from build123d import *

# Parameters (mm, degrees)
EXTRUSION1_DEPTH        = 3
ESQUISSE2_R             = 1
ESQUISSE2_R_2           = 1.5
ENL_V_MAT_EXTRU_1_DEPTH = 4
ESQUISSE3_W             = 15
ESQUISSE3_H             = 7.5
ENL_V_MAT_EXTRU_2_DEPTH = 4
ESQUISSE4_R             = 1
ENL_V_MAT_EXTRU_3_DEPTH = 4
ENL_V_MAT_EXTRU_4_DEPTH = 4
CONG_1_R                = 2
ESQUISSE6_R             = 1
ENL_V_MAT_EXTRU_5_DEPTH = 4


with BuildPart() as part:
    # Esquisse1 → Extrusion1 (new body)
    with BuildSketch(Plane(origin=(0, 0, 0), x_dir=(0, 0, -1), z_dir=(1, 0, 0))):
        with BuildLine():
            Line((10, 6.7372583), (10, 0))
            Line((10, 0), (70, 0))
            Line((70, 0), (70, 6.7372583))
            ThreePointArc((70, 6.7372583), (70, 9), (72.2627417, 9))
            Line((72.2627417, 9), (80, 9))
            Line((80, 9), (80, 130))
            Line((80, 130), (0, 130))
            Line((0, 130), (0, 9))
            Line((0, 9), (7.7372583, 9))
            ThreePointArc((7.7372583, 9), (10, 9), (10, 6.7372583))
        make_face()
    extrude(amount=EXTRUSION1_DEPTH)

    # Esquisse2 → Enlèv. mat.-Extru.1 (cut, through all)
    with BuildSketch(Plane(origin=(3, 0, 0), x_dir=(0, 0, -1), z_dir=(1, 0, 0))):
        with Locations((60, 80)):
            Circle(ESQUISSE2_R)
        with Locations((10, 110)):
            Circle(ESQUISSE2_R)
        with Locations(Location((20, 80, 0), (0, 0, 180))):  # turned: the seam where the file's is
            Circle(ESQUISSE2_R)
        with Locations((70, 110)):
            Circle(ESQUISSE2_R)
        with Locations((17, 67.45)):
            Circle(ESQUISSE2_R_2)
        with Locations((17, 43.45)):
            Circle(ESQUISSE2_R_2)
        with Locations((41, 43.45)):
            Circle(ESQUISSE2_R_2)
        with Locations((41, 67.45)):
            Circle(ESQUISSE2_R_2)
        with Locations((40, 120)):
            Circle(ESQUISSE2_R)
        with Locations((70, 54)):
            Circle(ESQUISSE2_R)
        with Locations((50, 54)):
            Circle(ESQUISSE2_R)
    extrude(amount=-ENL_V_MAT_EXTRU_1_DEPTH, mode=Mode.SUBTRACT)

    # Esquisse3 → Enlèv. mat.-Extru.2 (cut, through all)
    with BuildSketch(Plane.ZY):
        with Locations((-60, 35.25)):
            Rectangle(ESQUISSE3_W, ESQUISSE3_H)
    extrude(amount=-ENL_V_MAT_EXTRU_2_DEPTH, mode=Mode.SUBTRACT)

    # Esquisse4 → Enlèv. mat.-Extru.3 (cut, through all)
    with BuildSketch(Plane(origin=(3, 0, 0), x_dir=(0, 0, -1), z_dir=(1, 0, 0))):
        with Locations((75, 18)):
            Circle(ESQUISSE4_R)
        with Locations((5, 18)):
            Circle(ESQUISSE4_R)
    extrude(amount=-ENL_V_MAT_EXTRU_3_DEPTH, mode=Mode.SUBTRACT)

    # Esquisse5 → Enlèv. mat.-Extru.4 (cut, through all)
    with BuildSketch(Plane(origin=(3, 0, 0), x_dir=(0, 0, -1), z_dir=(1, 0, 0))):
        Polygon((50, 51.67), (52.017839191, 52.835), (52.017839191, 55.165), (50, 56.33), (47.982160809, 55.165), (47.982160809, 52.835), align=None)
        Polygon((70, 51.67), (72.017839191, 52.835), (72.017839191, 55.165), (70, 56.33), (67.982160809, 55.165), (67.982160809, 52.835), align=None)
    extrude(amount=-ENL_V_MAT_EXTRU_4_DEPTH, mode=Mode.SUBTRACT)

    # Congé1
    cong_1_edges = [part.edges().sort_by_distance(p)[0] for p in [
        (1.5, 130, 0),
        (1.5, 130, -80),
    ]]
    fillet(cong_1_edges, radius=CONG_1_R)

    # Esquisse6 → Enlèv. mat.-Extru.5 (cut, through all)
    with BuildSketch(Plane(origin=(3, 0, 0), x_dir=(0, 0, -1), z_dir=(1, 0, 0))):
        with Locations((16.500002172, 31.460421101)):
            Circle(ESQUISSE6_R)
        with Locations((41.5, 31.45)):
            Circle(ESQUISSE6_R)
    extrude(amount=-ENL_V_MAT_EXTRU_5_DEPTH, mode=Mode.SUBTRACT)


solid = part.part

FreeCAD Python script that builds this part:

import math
import FreeCAD as App
import Part
import Sketcher

V = App.Vector
Q = App.Units.Quantity


def edges_at(feature, points):
    """Names of the edges that pass closest to the given points."""
    edges = feature.Shape.Edges
    near = lambda p: min(range(len(edges)), key=lambda i: edges[i].distToShape(Part.Vertex(*p))[0])
    return sorted({f"Edge{near(p) + 1}" for p in points})

doc = App.newDocument("Part")
body = doc.addObject("PartDesign::Body", "Body")

sketch1 = doc.addObject("Sketcher::SketchObject", "Sketch")
body.addObject(sketch1)
sketch1.AttachmentSupport = (doc.YZ_Plane, [""])
sketch1.MapMode = "FlatFace"
sketch1.addGeometry(Part.LineSegment(V(6.737258, -10, 0), V(0, -10, 0)), False)
sketch1.addGeometry(Part.LineSegment(V(0, -10, 0), V(0, -70, 0)), False)
sketch1.addGeometry(Part.LineSegment(V(0, -70, 0), V(6.737258, -70, 0)), False)
sketch1.addGeometry(Part.ArcOfCircle(Part.Circle(V(7.868629, -71.131371, 0), V(0, 0, 1), 1.6), math.radians(-45), math.radians(135)), False)
sketch1.addGeometry(Part.LineSegment(V(9, -72.262742, 0), V(9, -80, 0)), False)
sketch1.addGeometry(Part.LineSegment(V(9, -80, 0), V(130, -80, 0)), False)
sketch1.addGeometry(Part.LineSegment(V(130, -80, 0), V(130, 0, 0)), False)
sketch1.addGeometry(Part.LineSegment(V(130, 0, 0), V(9, 0, 0)), False)
sketch1.addGeometry(Part.LineSegment(V(9, 0, 0), V(9, -7.737258, 0)), False)
sketch1.addGeometry(Part.ArcOfCircle(Part.Circle(V(7.868629, -8.868629, 0), V(0, 0, 1), 1.6), math.radians(-135), math.radians(45)), False)
sketch1.addConstraint(Sketcher.Constraint("Coincident", 0, 2, 1, 1))
sketch1.addConstraint(Sketcher.Constraint("Coincident", 1, 2, 2, 1))
sketch1.addConstraint(Sketcher.Constraint("Coincident", 2, 2, 3, 2))
sketch1.addConstraint(Sketcher.Constraint("Coincident", 3, 1, 4, 1))
sketch1.addConstraint(Sketcher.Constraint("Coincident", 4, 2, 5, 1))
sketch1.addConstraint(Sketcher.Constraint("Coincident", 5, 2, 6, 1))
sketch1.addConstraint(Sketcher.Constraint("Coincident", 6, 2, 7, 1))
sketch1.addConstraint(Sketcher.Constraint("Coincident", 7, 2, 8, 1))
sketch1.addConstraint(Sketcher.Constraint("Coincident", 8, 2, 9, 2))
sketch1.addConstraint(Sketcher.Constraint("Coincident", 9, 1, 0, 1))
sketch1.addConstraint(Sketcher.Constraint("Horizontal", 0))
sketch1.addConstraint(Sketcher.Constraint("Vertical", 1))
sketch1.addConstraint(Sketcher.Constraint("Horizontal", 2))
sketch1.addConstraint(Sketcher.Constraint("Vertical", 4))
sketch1.addConstraint(Sketcher.Constraint("Horizontal", 5))
sketch1.addConstraint(Sketcher.Constraint("Vertical", 6))
sketch1.addConstraint(Sketcher.Constraint("Horizontal", 7))
sketch1.addConstraint(Sketcher.Constraint("Vertical", 8))
sketch1.addConstraint(Sketcher.Constraint("Equal", 3, 9))
sketch1.addConstraint(Sketcher.Constraint("PointOnObject", 0, 2, -2))
sketch1.addConstraint(Sketcher.Constraint("PointOnObject", 6, 2, -1))
sketch1.addConstraint(Sketcher.Constraint("Vertical", 3, 3, 9, 3))
sketch1.addConstraint(Sketcher.Constraint("Vertical", 4, 2, 7, 2))
sketch1.addConstraint(Sketcher.Constraint("Vertical", 2, 2, 9, 1))
sketch1.addConstraint(Sketcher.Constraint("Equal", 4, 8))
sketch1.addConstraint(Sketcher.Constraint("Radius", 3, 1.6))
sketch1.addConstraint(Sketcher.Constraint("DistanceX", 5, 1, 5, 2, 121.0))
sketch1.addConstraint(Sketcher.Constraint("DistanceY", 1, 2, 1, 1, 60.0))
sketch1.addConstraint(Sketcher.Constraint("DistanceY", 6, 1, 6, 2, 80.0))
sketch1.addConstraint(Sketcher.Constraint("DistanceX", -1, 1, 3, 1, 9.0))
sketch1.addConstraint(Sketcher.Constraint("DistanceX", 0, 2, 0, 1, 6.737258))
sketch1.addConstraint(Sketcher.Constraint("DistanceX", -1, 1, 3, 3, 7.868629))
pad1 = doc.addObject("PartDesign::Pad", "Pad")
body.addObject(pad1)
pad1.Profile = sketch1
pad1.Length = 3

sketch2 = doc.addObject("Sketcher::SketchObject", "Sketch001")
body.addObject(sketch2)
sketch2.AttachmentSupport = (doc.YZ_Plane, [""])
sketch2.MapMode = "FlatFace"
sketch2.AttachmentOffset = App.Placement(V(0, 0, 3), App.Rotation())
sketch2.addGeometry(Part.Circle(V(80, -60, 0), V(0, 0, 1), 1), False)
sketch2.addGeometry(Part.Circle(V(110, -10, 0), V(0, 0, 1), 1), False)
sketch2.addGeometry(Part.Circle(V(80, -20, 0), V(0, 0, 1), 1), False)
sketch2.addGeometry(Part.Circle(V(110, -70, 0), V(0, 0, 1), 1), False)
sketch2.addGeometry(Part.Circle(V(67.45, -17, 0), V(0, 0, 1), 1.5), False)
sketch2.addGeometry(Part.Circle(V(43.45, -17, 0), V(0, 0, 1), 1.5), False)
sketch2.addGeometry(Part.Circle(V(43.45, -41, 0), V(0, 0, 1), 1.5), False)
sketch2.addGeometry(Part.Circle(V(67.45, -41, 0), V(0, 0, 1), 1.5), False)
sketch2.addGeometry(Part.Circle(V(120, -40, 0), V(0, 0, 1), 1), False)
sketch2.addGeometry(Part.Circle(V(54, -70, 0), V(0, 0, 1), 1), False)
sketch2.addGeometry(Part.Circle(V(54, -50, 0), V(0, 0, 1), 1), False)
sketch2.addConstraint(Sketcher.Constraint("Equal", 0, 1))
sketch2.addConstraint(Sketcher.Constraint("Equal", 1, 2))
sketch2.addConstraint(Sketcher.Constraint("Equal", 2, 3))
sketch2.addConstraint(Sketcher.Constraint("Equal", 4, 5))
sketch2.addConstraint(Sketcher.Constraint("Equal", 5, 6))
sketch2.addConstraint(Sketcher.Constraint("Equal", 6, 7))
sketch2.addConstraint(Sketcher.Constraint("Equal", 3, 8))
sketch2.addConstraint(Sketcher.Constraint("Equal", 8, 9))
sketch2.addConstraint(Sketcher.Constraint("Equal", 9, 10))
sketch2.addConstraint(Sketcher.Constraint("Horizontal", 4, 3, 5, 3))
sketch2.addConstraint(Sketcher.Constraint("Horizontal", 6, 3, 7, 3))
sketch2.addConstraint(Sketcher.Constraint("Horizontal", 3, 3, 9, 3))
sketch2.addConstraint(Sketcher.Constraint("Vertical", 0, 3, 2, 3))
sketch2.addConstraint(Sketcher.Constraint("Vertical", 1, 3, 3, 3))
sketch2.addConstraint(Sketcher.Constraint("Vertical", 5, 3, 6, 3))
sketch2.addConstraint(Sketcher.Constraint("Vertical", 4, 3, 7, 3))
sketch2.addConstraint(Sketcher.Constraint("Vertical", 9, 3, 10, 3))
sketch2.addConstraint(Sketcher.Constraint("Diameter", 0, 2.0))
sketch2.addConstraint(Sketcher.Constraint("Diameter", 4, 3.0))
sketch2.addConstraint(Sketcher.Constraint("DistanceX", -1, 1, 0, 3, 80.0))
sketch2.addConstraint(Sketcher.Constraint("DistanceY", 0, 3, -1, 1, 60.0))
sketch2.addConstraint(Sketcher.Constraint("DistanceX", -1, 1, 1, 3, 110.0))
sketch2.addConstraint(Sketcher.Constraint("DistanceY", 1, 3, -1, 1, 10.0))
sketch2.addConstraint(Sketcher.Constraint("DistanceY", 2, 3, -1, 1, 20.0))
sketch2.addConstraint(Sketcher.Constraint("DistanceY", 3, 3, -1, 1, 70.0))
sketch2.addConstraint(Sketcher.Constraint("DistanceY", 4, 3, -1, 1, 17.0))
sketch2.addConstraint(Sketcher.Constraint("DistanceY", 6, 3, -1, 1, 41.0))
sketch2.addConstraint(Sketcher.Constraint("DistanceX", -1, 1, 8, 3, 120.0))
sketch2.addConstraint(Sketcher.Constraint("DistanceY", 8, 3, -1, 1, 40.0))
sketch2.addConstraint(Sketcher.Constraint("DistanceX", -1, 1, 9, 3, 54.0))
sketch2.addConstraint(Sketcher.Constraint("DistanceY", 10, 3, -1, 1, 50.0))
sketch2.addConstraint(Sketcher.Constraint("DistanceX", 5, 3, 4, 3, 24.0))
sketch2.addConstraint(Sketcher.Constraint("DistanceX", -1, 1, 4, 3, 67.45))
pocket1 = doc.addObject("PartDesign::Pocket", "Pocket")
body.addObject(pocket1)
pocket1.Profile = sketch2
pocket1.Type = "ThroughAll"

sketch3 = doc.addObject("Sketcher::SketchObject", "Sketch002")
body.addObject(sketch3)
sketch3.AttachmentSupport = (doc.YZ_Plane, [""])
sketch3.MapMode = "FlatFace"
sketch3.addGeometry(Part.LineSegment(V(39, -67.5, 0), V(31.5, -67.5, 0)), False)
sketch3.addGeometry(Part.LineSegment(V(31.5, -67.5, 0), V(31.5, -52.5, 0)), False)
sketch3.addGeometry(Part.LineSegment(V(31.5, -52.5, 0), V(39, -52.5, 0)), False)
sketch3.addGeometry(Part.LineSegment(V(39, -52.5, 0), V(39, -67.5, 0)), False)
sketch3.addConstraint(Sketcher.Constraint("Coincident", 0, 2, 1, 1))
sketch3.addConstraint(Sketcher.Constraint("Coincident", 1, 2, 2, 1))
sketch3.addConstraint(Sketcher.Constraint("Coincident", 2, 2, 3, 1))
sketch3.addConstraint(Sketcher.Constraint("Coincident", 3, 2, 0, 1))
sketch3.addConstraint(Sketcher.Constraint("Horizontal", 0))
sketch3.addConstraint(Sketcher.Constraint("Vertical", 1))
sketch3.addConstraint(Sketcher.Constraint("Horizontal", 2))
sketch3.addConstraint(Sketcher.Constraint("Vertical", 3))
sketch3.addConstraint(Sketcher.Constraint("DistanceY", 1, 1, 1, 2, 15.0))
sketch3.addConstraint(Sketcher.Constraint("DistanceX", 0, 2, 0, 1, 7.5))
sketch3.addConstraint(Sketcher.Constraint("DistanceX", -1, 1, 2, 2, 39.0))
sketch3.addConstraint(Sketcher.Constraint("DistanceY", 0, 2, -1, 1, 67.5))
pocket2 = doc.addObject("PartDesign::Pocket", "Pocket001")
body.addObject(pocket2)
pocket2.Profile = sketch3
pocket2.Type = "ThroughAll"
pocket2.Reversed = True

sketch4 = doc.addObject("Sketcher::SketchObject", "Sketch003")
body.addObject(sketch4)
sketch4.AttachmentSupport = (doc.YZ_Plane, [""])
sketch4.MapMode = "FlatFace"
sketch4.AttachmentOffset = App.Placement(V(0, 0, 3), App.Rotation())
sketch4.addGeometry(Part.Circle(V(18, -75, 0), V(0, 0, 1), 1), False)
sketch4.addGeometry(Part.Circle(V(18, -5, 0), V(0, 0, 1), 1), False)
sketch4.addConstraint(Sketcher.Constraint("Equal", 0, 1))
sketch4.addConstraint(Sketcher.Constraint("Vertical", 0, 3, 1, 3))
sketch4.addConstraint(Sketcher.Constraint("Diameter", 0, 2.0))
sketch4.addConstraint(Sketcher.Constraint("DistanceX", -1, 1, 0, 3, 18.0))
sketch4.addConstraint(Sketcher.Constraint("DistanceY", 0, 3, -1, 1, 75.0))
sketch4.addConstraint(Sketcher.Constraint("DistanceY", 1, 3, -1, 1, 5.0))
pocket3 = doc.addObject("PartDesign::Pocket", "Pocket002")
body.addObject(pocket3)
pocket3.Profile = sketch4
pocket3.Type = "ThroughAll"

sketch5 = doc.addObject("Sketcher::SketchObject", "Sketch004")
body.addObject(sketch5)
sketch5.AttachmentSupport = (doc.YZ_Plane, [""])
sketch5.MapMode = "FlatFace"
sketch5.AttachmentOffset = App.Placement(V(0, 0, 3), App.Rotation())
sketch5.addGeometry(Part.LineSegment(V(51.67, -50, 0), V(52.835, -52.017839, 0)), False)
sketch5.addGeometry(Part.LineSegment(V(52.835, -52.017839, 0), V(55.165, -52.017839, 0)), False)
sketch5.addGeometry(Part.LineSegment(V(55.165, -52.017839, 0), V(56.33, -50, 0)), False)
sketch5.addGeometry(Part.LineSegment(V(56.33, -50, 0), V(55.165, -47.982161, 0)), False)
sketch5.addGeometry(Part.LineSegment(V(55.165, -47.982161, 0), V(52.835, -47.982161, 0)), False)
sketch5.addGeometry(Part.LineSegment(V(52.835, -47.982161, 0), V(51.67, -50, 0)), False)
sketch5.addGeometry(Part.LineSegment(V(51.67, -70, 0), V(52.835, -72.017839, 0)), False)
sketch5.addGeometry(Part.LineSegment(V(52.835, -72.017839, 0), V(55.165, -72.017839, 0)), False)
sketch5.addGeometry(Part.LineSegment(V(55.165, -72.017839, 0), V(56.33, -70, 0)), False)
sketch5.addGeometry(Part.LineSegment(V(56.33, -70, 0), V(55.165, -67.982161, 0)), False)
sketch5.addGeometry(Part.LineSegment(V(55.165, -67.982161, 0), V(52.835, -67.982161, 0)), False)
sketch5.addGeometry(Part.LineSegment(V(52.835, -67.982161, 0), V(51.67, -70, 0)), False)
sketch5.addConstraint(Sketcher.Constraint("Coincident", 0, 2, 1, 1))
sketch5.addConstraint(Sketcher.Constraint("Coincident", 1, 2, 2, 1))
sketch5.addConstraint(Sketcher.Constraint("Coincident", 2, 2, 3, 1))
sketch5.addConstraint(Sketcher.Constraint("Coincident", 3, 2, 4, 1))
sketch5.addConstraint(Sketcher.Constraint("Coincident", 4, 2, 5, 1))
sketch5.addConstraint(Sketcher.Constraint("Coincident", 5, 2, 0, 1))
sketch5.addConstraint(Sketcher.Constraint("Coincident", 6, 2, 7, 1))
sketch5.addConstraint(Sketcher.Constraint("Coincident", 7, 2, 8, 1))
sketch5.addConstraint(Sketcher.Constraint("Coincident", 8, 2, 9, 1))
sketch5.addConstraint(Sketcher.Constraint("Coincident", 9, 2, 10, 1))
sketch5.addConstraint(Sketcher.Constraint("Coincident", 10, 2, 11, 1))
sketch5.addConstraint(Sketcher.Constraint("Coincident", 11, 2, 6, 1))
sketch5.addConstraint(Sketcher.Constraint("Horizontal", 1))
sketch5.addConstraint(Sketcher.Constraint("Horizontal", 4))
sketch5.addConstraint(Sketcher.Constraint("Horizontal", 7))
sketch5.addConstraint(Sketcher.Constraint("Horizontal", 10))
sketch5.addConstraint(Sketcher.Constraint("Parallel", 0, 3))
sketch5.addConstraint(Sketcher.Constraint("Parallel", 2, 5))
sketch5.addConstraint(Sketcher.Constraint("Parallel", 3, 6))
sketch5.addConstraint(Sketcher.Constraint("Parallel", 5, 8))
sketch5.addConstraint(Sketcher.Constraint("Parallel", 6, 9))
sketch5.addConstraint(Sketcher.Constraint("Parallel", 8, 11))
sketch5.addConstraint(Sketcher.Constraint("Horizontal", 2, 2, 5, 2))
sketch5.addConstraint(Sketcher.Constraint("Horizontal", 8, 2, 11, 2))
sketch5.addConstraint(Sketcher.Constraint("Vertical", 1, 2, 3, 2))
sketch5.addConstraint(Sketcher.Constraint("Vertical", 0, 2, 4, 2))
sketch5.addConstraint(Sketcher.Constraint("Vertical", 4, 2, 6, 2))
sketch5.addConstraint(Sketcher.Constraint("Vertical", 3, 2, 7, 2))
sketch5.addConstraint(Sketcher.Constraint("Vertical", 2, 2, 8, 2))
sketch5.addConstraint(Sketcher.Constraint("Vertical", 7, 2, 9, 2))
sketch5.addConstraint(Sketcher.Constraint("Angle", 0, Q("-60 deg")))
sketch5.addConstraint(Sketcher.Constraint("DistanceY", 2, 2, -1, 1, 50.0))
sketch5.addConstraint(Sketcher.Constraint("DistanceY", 8, 2, -1, 1, 70.0))
sketch5.addConstraint(Sketcher.Constraint("DistanceX", 1, 1, 1, 2, 2.33))
sketch5.addConstraint(Sketcher.Constraint("Distance", 0, 2.33))
sketch5.addConstraint(Sketcher.Constraint("DistanceX", -1, 1, 2, 2, 56.33))
pocket4 = doc.addObject("PartDesign::Pocket", "Pocket003")
body.addObject(pocket4)
pocket4.Profile = sketch5
pocket4.Type = "ThroughAll"
doc.recompute()

fillet = doc.addObject("PartDesign::Fillet", "Fillet")
body.addObject(fillet)
fillet.Base = (pocket4, edges_at(pocket4, [(1.5, 130, 0), (1.5, 130, -80)]))
fillet.Radius = 2

sketch6 = doc.addObject("Sketcher::SketchObject", "Sketch005")
body.addObject(sketch6)
sketch6.AttachmentSupport = (doc.YZ_Plane, [""])
sketch6.MapMode = "FlatFace"
sketch6.AttachmentOffset = App.Placement(V(0, 0, 3), App.Rotation())
sketch6.addGeometry(Part.Circle(V(31.460421, -16.500002, 0), V(0, 0, 1), 1), False)
sketch6.addGeometry(Part.Circle(V(31.45, -41.5, 0), V(0, 0, 1), 1), False)
sketch6.addConstraint(Sketcher.Constraint("Equal", 0, 1))
sketch6.addConstraint(Sketcher.Constraint("Diameter", 0, 2.0))
sketch6.addConstraint(Sketcher.Constraint("DistanceY", 1, 3, -1, 1, 41.5))
sketch6.addConstraint(Sketcher.Constraint("DistanceX", -1, 1, 1, 3, 31.45))
sketch6.addConstraint(Sketcher.Constraint("DistanceX", -1, 1, 0, 3, 31.460421))
sketch6.addConstraint(Sketcher.Constraint("DistanceY", 0, 3, -1, 1, 16.500002))
pocket5 = doc.addObject("PartDesign::Pocket", "Pocket004")
body.addObject(pocket5)
pocket5.Profile = sketch6
pocket5.Type = "ThroughAll"

doc.recompute()
